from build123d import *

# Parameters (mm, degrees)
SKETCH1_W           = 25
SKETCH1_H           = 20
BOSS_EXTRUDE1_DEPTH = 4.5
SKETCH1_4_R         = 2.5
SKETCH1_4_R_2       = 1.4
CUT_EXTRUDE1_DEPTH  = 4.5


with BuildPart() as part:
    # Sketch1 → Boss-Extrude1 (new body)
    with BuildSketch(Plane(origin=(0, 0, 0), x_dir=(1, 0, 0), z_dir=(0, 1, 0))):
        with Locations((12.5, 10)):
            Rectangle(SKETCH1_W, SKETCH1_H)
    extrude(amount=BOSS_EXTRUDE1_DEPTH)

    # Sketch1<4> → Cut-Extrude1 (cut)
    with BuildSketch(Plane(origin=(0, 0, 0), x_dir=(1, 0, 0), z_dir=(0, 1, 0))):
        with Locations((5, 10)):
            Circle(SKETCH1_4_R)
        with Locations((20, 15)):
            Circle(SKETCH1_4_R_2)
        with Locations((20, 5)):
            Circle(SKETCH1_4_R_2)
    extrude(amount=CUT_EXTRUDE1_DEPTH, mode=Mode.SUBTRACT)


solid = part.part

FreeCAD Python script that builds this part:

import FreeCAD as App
import Part
import Sketcher

doc = App.newDocument("Part")
params = doc.addObject("Spreadsheet::Sheet", "Params")
for row, (alias, value) in enumerate([
    ("sketch1_width", "25 mm"),
    ("sketch1_height", "20 mm"),
    ("pad1_length", "4.5 mm"),
    ("sketch2_diameter", "5 mm"),
    ("sketch2_diameter2", "2.8 mm"),
    ("pocket1_length", "4.5 mm"),
], start=1):
    params.set(f"A{row}", alias)
    params.set(f"B{row}", "=" + value)
    params.setAlias(f"B{row}", alias)

body = doc.addObject("PartDesign::Body", "Body")

# Sketch on XZ plane
sketch1 = body.newObject("Sketcher::SketchObject", "Sketch")
sketch1.AttachmentSupport = (doc.getObject("XZ_Plane"), [""])
sketch1.MapMode = "FlatFace"
sketch1.addGeometry([
    Part.LineSegment(App.Vector(0, -20, 0), App.Vector(0, 0, 0)),
    Part.LineSegment(App.Vector(0, 0, 0), App.Vector(25, 0, 0)),
    Part.LineSegment(App.Vector(25, 0, 0), App.Vector(25, -20, 0)),
    Part.LineSegment(App.Vector(25, -20, 0), App.Vector(0, -20, 0)),
], False)
sketch1.addConstraint([
    Sketcher.Constraint("Coincident", 0, 2, 1, 1),
    Sketcher.Constraint("Coincident", 1, 2, 2, 1),
    Sketcher.Constraint("Coincident", 2, 2, 3, 1),
    Sketcher.Constraint("Coincident", 3, 2, 0, 1),
    Sketcher.Constraint("Vertical", 0),
    Sketcher.Constraint("Horizontal", 1),
    Sketcher.Constraint("Vertical", 2),
    Sketcher.Constraint("Horizontal", 3),
    Sketcher.Constraint("Coincident", 0, 2, -1, 1),
    Sketcher.Constraint("DistanceX", 1, 1, 1, 2, 25.0),
    Sketcher.Constraint("DistanceY", 0, 1, 0, 2, 20.0),
])
sketch1.setExpression("Constraints[9]", "Params.sketch1_width")
sketch1.setExpression("Constraints[10]", "Params.sketch1_height")
pad1 = body.newObject("PartDesign::Pad", "Pad")
pad1.Profile = sketch1
pad1.setExpression("Length", "Params.pad1_length")
pad1.Reversed = True

# Sketch on XZ plane
sketch2 = body.newObject("Sketcher::SketchObject", "Sketch001")
sketch2.AttachmentSupport = (doc.getObject("XZ_Plane"), [""])
sketch2.MapMode = "FlatFace"
sketch2.addGeometry([
    Part.Circle(App.Vector(5, -10, 0), App.Vector(0, 0, 1), 2.5),
    Part.Circle(App.Vector(20, -15, 0), App.Vector(0, 0, 1), 1.4),
    Part.Circle(App.Vector(20, -5, 0), App.Vector(0, 0, 1), 1.4),
], False)
sketch2.addConstraint([
    Sketcher.Constraint("Equal", 1, 2),
    Sketcher.Constraint("Vertical", 1, 3, 2, 3),
    Sketcher.Constraint("Diameter", 0, 5.0),
    Sketcher.Constraint("Diameter", 1, 2.8),
    Sketcher.Constraint("DistanceX", -1, 1, 0, 3, 5.0),
    Sketcher.Constraint("DistanceY", 0, 3, -1, 1, 10.0),
    Sketcher.Constraint("DistanceX", -1, 1, 1, 3, 20.0),
    Sketcher.Constraint("DistanceY", 1, 3, -1, 1, 15.0),
    Sketcher.Constraint("DistanceY", 2, 3, -1, 1, 5.0),
])
sketch2.setExpression("Constraints[2]", "Params.sketch2_diameter")
sketch2.setExpression("Constraints[3]", "Params.sketch2_diameter2")
pocket1 = body.newObject("PartDesign::Pocket", "Pocket")
pocket1.Profile = sketch2
pocket1.setExpression("Length", "Params.pocket1_length")

doc.recompute()
